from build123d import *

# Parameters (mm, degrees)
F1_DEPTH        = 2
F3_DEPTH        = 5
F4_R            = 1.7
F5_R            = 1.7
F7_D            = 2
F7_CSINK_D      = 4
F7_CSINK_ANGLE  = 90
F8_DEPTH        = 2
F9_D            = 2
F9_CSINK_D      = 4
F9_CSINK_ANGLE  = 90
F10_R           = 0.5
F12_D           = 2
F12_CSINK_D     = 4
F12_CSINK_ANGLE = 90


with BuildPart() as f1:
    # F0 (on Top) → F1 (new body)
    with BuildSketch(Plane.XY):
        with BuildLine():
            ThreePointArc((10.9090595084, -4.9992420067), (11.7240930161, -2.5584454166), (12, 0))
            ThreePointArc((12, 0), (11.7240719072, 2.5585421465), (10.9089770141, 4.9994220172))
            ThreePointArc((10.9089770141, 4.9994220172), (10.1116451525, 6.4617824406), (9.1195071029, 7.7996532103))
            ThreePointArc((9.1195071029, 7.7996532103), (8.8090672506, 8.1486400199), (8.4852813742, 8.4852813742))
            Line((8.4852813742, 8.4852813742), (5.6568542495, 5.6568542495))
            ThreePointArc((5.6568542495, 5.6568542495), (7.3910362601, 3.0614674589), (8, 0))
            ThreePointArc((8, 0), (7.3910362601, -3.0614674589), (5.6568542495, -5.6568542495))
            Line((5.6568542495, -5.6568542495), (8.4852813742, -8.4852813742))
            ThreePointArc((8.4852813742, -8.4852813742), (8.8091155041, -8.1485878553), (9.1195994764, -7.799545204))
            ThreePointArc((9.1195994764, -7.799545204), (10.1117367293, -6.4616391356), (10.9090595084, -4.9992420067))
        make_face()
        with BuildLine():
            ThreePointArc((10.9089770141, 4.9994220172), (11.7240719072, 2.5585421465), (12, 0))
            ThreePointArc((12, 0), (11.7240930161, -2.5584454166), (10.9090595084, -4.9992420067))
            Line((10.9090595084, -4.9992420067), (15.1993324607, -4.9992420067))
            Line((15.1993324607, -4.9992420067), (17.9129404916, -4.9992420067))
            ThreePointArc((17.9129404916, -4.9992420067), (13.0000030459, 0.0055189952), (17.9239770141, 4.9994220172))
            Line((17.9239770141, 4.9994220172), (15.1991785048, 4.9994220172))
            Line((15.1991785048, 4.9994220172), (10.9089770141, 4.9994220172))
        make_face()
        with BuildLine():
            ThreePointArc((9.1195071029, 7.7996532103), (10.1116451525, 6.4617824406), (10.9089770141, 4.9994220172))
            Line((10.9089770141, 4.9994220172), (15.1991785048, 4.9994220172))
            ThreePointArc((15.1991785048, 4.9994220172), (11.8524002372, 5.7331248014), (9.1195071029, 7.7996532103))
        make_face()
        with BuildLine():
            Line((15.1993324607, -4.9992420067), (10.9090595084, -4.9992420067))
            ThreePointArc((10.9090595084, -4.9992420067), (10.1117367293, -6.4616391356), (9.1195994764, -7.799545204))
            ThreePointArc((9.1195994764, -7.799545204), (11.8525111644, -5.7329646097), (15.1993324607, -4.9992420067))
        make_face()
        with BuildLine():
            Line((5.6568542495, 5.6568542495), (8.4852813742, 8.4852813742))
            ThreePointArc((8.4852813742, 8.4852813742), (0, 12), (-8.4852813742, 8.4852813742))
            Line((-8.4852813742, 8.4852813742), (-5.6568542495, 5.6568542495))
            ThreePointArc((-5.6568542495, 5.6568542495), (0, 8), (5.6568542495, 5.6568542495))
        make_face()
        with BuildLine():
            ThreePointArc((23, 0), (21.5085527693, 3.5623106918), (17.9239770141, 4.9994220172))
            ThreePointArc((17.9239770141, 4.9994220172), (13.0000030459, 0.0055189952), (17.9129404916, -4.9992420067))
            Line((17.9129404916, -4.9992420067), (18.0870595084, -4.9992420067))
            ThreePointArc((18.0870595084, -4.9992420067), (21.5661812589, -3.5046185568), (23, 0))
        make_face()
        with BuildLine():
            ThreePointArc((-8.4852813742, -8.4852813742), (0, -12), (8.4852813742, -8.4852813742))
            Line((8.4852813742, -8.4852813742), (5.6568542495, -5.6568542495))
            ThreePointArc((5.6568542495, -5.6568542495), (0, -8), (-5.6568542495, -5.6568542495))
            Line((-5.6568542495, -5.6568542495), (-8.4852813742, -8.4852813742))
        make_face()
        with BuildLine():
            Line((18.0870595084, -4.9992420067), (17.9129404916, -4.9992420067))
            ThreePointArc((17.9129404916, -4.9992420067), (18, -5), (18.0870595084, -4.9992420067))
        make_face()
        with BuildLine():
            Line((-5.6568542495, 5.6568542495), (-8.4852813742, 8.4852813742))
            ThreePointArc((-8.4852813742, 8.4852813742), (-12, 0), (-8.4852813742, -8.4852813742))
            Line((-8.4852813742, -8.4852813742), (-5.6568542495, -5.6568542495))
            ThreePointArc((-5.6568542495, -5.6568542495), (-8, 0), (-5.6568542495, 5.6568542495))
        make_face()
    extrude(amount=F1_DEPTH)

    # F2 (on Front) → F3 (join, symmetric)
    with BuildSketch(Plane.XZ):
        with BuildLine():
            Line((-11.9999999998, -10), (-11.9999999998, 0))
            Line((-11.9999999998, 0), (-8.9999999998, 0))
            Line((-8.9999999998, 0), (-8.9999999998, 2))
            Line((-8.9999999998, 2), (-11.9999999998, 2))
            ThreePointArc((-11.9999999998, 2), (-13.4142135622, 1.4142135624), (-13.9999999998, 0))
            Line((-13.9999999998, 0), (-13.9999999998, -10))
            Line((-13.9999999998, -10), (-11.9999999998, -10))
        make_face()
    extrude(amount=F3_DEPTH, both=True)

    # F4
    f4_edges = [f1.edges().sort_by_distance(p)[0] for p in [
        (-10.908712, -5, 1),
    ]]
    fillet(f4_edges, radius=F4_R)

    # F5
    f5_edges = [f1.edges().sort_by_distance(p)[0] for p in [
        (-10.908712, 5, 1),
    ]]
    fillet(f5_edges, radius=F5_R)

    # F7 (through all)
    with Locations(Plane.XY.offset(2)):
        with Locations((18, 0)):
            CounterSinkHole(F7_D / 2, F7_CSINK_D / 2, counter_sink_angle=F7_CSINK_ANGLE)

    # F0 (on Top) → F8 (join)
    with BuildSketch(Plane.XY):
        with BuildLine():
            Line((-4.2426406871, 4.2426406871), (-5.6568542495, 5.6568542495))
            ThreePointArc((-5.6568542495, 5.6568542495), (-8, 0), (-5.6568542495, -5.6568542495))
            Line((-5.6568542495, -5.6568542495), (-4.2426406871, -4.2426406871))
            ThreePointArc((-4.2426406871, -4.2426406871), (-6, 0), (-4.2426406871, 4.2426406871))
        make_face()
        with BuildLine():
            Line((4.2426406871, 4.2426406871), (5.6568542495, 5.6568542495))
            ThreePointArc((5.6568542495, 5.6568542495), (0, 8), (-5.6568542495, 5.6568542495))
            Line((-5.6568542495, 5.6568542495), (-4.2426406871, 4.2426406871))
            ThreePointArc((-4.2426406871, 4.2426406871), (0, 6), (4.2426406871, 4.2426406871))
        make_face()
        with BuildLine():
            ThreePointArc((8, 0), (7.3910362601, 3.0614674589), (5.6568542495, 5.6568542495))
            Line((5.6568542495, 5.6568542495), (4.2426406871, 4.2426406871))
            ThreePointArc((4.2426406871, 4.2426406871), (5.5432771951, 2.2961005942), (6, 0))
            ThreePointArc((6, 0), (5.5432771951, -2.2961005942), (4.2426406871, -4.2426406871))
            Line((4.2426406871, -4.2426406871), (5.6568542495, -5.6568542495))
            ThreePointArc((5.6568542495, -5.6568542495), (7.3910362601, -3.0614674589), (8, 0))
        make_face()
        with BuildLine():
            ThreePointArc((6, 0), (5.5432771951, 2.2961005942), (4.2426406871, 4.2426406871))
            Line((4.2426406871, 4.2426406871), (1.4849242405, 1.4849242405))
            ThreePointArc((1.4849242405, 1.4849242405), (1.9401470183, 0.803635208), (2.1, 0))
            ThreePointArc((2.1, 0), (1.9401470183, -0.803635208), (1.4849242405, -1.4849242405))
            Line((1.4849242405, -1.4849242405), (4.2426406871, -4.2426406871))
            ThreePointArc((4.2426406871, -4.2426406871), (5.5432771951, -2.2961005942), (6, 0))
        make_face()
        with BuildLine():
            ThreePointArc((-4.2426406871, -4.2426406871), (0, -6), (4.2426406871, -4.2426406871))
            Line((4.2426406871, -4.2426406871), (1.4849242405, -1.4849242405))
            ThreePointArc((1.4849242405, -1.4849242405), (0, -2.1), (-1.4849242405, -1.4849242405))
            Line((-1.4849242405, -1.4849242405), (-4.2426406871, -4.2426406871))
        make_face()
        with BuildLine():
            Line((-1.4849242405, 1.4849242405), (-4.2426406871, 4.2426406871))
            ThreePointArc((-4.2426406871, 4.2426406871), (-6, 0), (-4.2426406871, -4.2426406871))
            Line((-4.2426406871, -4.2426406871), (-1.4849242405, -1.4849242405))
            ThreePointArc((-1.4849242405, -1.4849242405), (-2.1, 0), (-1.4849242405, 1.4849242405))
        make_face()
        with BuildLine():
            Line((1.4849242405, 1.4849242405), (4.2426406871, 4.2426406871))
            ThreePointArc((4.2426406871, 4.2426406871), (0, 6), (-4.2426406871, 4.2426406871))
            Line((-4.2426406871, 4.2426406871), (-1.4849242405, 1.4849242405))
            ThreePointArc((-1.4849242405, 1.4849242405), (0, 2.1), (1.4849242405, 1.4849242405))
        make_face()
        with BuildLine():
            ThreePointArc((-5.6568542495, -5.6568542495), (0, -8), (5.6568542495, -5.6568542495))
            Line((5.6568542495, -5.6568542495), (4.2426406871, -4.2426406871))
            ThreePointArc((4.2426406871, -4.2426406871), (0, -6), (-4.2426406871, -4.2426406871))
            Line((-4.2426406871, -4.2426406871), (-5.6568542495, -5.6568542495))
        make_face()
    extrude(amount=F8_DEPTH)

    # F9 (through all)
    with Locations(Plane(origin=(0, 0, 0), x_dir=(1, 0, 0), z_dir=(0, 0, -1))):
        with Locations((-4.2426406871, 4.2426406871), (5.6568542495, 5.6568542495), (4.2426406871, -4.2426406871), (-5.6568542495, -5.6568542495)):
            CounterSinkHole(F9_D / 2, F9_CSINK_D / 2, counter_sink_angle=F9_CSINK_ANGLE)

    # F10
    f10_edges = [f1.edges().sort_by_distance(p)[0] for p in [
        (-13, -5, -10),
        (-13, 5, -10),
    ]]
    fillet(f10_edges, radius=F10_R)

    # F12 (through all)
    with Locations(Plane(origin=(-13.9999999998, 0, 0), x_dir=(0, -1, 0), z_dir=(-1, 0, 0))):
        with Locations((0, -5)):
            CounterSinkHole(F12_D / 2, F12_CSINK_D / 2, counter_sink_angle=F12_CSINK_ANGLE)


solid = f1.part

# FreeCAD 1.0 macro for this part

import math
import FreeCAD as App
import Part
import Sketcher
from FreeCAD import Vector
Q = App.Units.Quantity


def edges_at(feature, points):
    """Names of the edges that pass closest to the given points."""
    edges = feature.Shape.Edges
    near = lambda p: min(range(len(edges)), key=lambda i: edges[i].distToShape(Part.Vertex(*p))[0])
    return sorted({f"Edge{near(p) + 1}" for p in points})

doc = App.newDocument("Part")
params = doc.addObject("Spreadsheet::Sheet", "Params")
for row, (alias, value) in enumerate([
    ("sketch1_radius", "12 mm"),
    ("sketch1_radius2", "8 mm"),
    ("sketch1_radius3", "5 mm"),
    ("pad1_length", "2 mm"),
    ("sketch2_radius", "2 mm"),
    ("sketch2_width", "3 mm"),
    ("sketch2_height", "10 mm"),
    ("pad2_length", "10 mm"),
    ("fillet_radius", "1.7 mm"),
    ("fillet2_radius", "1.7 mm"),
    ("sketch3_diameter", "2 mm"),
    ("hole_diameter", "2 mm"),
    ("hole_csink_diameter", "4 mm"),
    ("sketch4_radius", "8 mm"),
    ("sketch4_radius2", "2.1 mm"),
    ("pad3_length", "2 mm"),
    ("sketch5_diameter", "2 mm"),
    ("hole2_diameter", "2 mm"),
    ("hole2_csink_diameter", "4 mm"),
    ("fillet3_radius", "0.5 mm"),
    ("sketch6_diameter", "2 mm"),
    ("hole3_diameter", "2 mm"),
    ("hole3_csink_diameter", "4 mm"),
], start=1):
    params.set(f"A{row}", alias)
    params.set(f"B{row}", "=" + value)
    params.setAlias(f"B{row}", alias)

body = doc.addObject("PartDesign::Body", "Body")

sketch1 = doc.addObject("Sketcher::SketchObject", "Sketch")
body.addObject(sketch1)
sketch1.AttachmentSupport = (doc.XY_Plane, [""])
sketch1.MapMode = "FlatFace"
sketch1.addGeometry(Part.ArcOfCircle(Part.Circle(Vector(0, 0, 0), Vector(0, 0, 1), 12), math.radians(40.539423), math.radians(45)), False)
sketch1.addGeometry(Part.ArcOfCircle(Part.Circle(Vector(0, 0, 0), Vector(0, 0, 1), 12), math.radians(45), math.radians(135)), False)
sketch1.addGeometry(Part.ArcOfCircle(Part.Circle(Vector(0, 0, 0), Vector(0, 0, 1), 12), math.radians(135), math.radians(225)), False)
sketch1.addGeometry(Part.ArcOfCircle(Part.Circle(Vector(0, 0, 0), Vector(0, 0, 1), 12), math.radians(-135), math.radians(-45)), False)
sketch1.addGeometry(Part.ArcOfCircle(Part.Circle(Vector(0, 0, 0), Vector(0, 0, 1), 12), math.radians(-45), math.radians(-40.538744)), False)
sketch1.addGeometry(Part.ArcOfCircle(Part.Circle(Vector(15.199332, -12.999242, 0), Vector(0, 0, 1), 8), math.radians(90), math.radians(139.461256)), False)
sketch1.addGeometry(Part.LineSegment(Vector(15.199332, -4.999242, 0), Vector(17.91294, -4.999242, 0)), False)
sketch1.addGeometry(Part.ArcOfCircle(Part.Circle(Vector(18, 0, 0), Vector(0, 0, 1), 5), math.radians(-90.997679), math.radians(-89.002321)), False)
sketch1.addGeometry(Part.ArcOfCircle(Part.Circle(Vector(18, 0, 0), Vector(0, 0, 1), 5), math.radians(-89.002321), math.radians(0)), False)
sketch1.addGeometry(Part.ArcOfCircle(Part.Circle(Vector(18, 0, 0), Vector(0, 0, 1), 5), math.radians(0), math.radians(90.871193)), False)
sketch1.addGeometry(Part.LineSegment(Vector(17.923977, 4.999422, 0), Vector(15.199179, 4.999422, 0)), False)
sketch1.addGeometry(Part.ArcOfCircle(Part.Circle(Vector(15.199179, 12.999422, 0), Vector(0, 0, 1), 8), math.radians(-139.460577), math.radians(-90)), False)
sketch1.addGeometry(Part.ArcOfCircle(Part.Circle(Vector(0, 0, 0), Vector(0, 0, 1), 8), math.radians(45), math.radians(135)), False)
sketch1.addGeometry(Part.ArcOfCircle(Part.Circle(Vector(0, 0, 0), Vector(0, 0, 1), 8), math.radians(0), math.radians(45)), False)
sketch1.addGeometry(Part.ArcOfCircle(Part.Circle(Vector(0, 0, 0), Vector(0, 0, 1), 8), math.radians(-45), math.radians(0)), False)
sketch1.addGeometry(Part.ArcOfCircle(Part.Circle(Vector(0, 0, 0), Vector(0, 0, 1), 8), math.radians(-135), math.radians(-45)), False)
sketch1.addGeometry(Part.ArcOfCircle(Part.Circle(Vector(0, 0, 0), Vector(0, 0, 1), 8), math.radians(135), math.radians(225)), False)
sketch1.addConstraint(Sketcher.Constraint("Tangent", 0, 2, 1, 1))
sketch1.addConstraint(Sketcher.Constraint("Tangent", 1, 2, 2, 1))
sketch1.addConstraint(Sketcher.Constraint("Tangent", 2, 2, 3, 1))
sketch1.addConstraint(Sketcher.Constraint("Tangent", 3, 2, 4, 1))
sketch1.addConstraint(Sketcher.Constraint("Tangent", 4, 2, 5, 2))
sketch1.addConstraint(Sketcher.Constraint("Tangent", 5, 1, 6, 1))
sketch1.addConstraint(Sketcher.Constraint("Coincident", 6, 2, 7, 1))
sketch1.addConstraint(Sketcher.Constraint("Tangent", 7, 2, 8, 1))
sketch1.addConstraint(Sketcher.Constraint("Tangent", 8, 2, 9, 1))
sketch1.addConstraint(Sketcher.Constraint("Coincident", 9, 2, 10, 1))
sketch1.addConstraint(Sketcher.Constraint("Tangent", 10, 2, 11, 2))
sketch1.addConstraint(Sketcher.Constraint("Tangent", 11, 1, 0, 1))
sketch1.addConstraint(Sketcher.Constraint("Tangent", 12, 1, 13, 2))
sketch1.addConstraint(Sketcher.Constraint("Tangent", 13, 1, 14, 2))
sketch1.addConstraint(Sketcher.Constraint("Tangent", 14, 1, 15, 2))
sketch1.addConstraint(Sketcher.Constraint("Tangent", 15, 1, 16, 2))
sketch1.addConstraint(Sketcher.Constraint("Tangent", 16, 1, 12, 2))
sketch1.addConstraint(Sketcher.Constraint("Horizontal", 6))
sketch1.addConstraint(Sketcher.Constraint("Horizontal", 10))
sketch1.addConstraint(Sketcher.Constraint("Coincident", 0, 3, -1, 1))
sketch1.addConstraint(Sketcher.Constraint("Coincident", 2, 3, -1, 1))
sketch1.addConstraint(Sketcher.Constraint("Coincident", 4, 3, -1, 1))
sketch1.addConstraint(Sketcher.Constraint("Coincident", 12, 3, -1, 1))
sketch1.addConstraint(Sketcher.Constraint("Coincident", 14, 3, -1, 1))
sketch1.addConstraint(Sketcher.Constraint("Coincident", 9, 3, 7, 3))
sketch1.addConstraint(Sketcher.Constraint("Equal", 5, 11))
sketch1.addConstraint(Sketcher.Constraint("Equal", 11, 12))
sketch1.addConstraint(Sketcher.Constraint("PointOnObject", 7, 3, -1))
sketch1.addConstraint(Sketcher.Constraint("PointOnObject", 8, 2, -1))
sketch1.addConstraint(Sketcher.Constraint("PointOnObject", 13, 1, -1))
sketch1.addConstraint(Sketcher.Constraint("Horizontal", 0, 2, 1, 2))
sketch1.addConstraint(Sketcher.Constraint("Horizontal", 2, 2, 3, 2))
sketch1.addConstraint(Sketcher.Constraint("Horizontal", 6, 2, 7, 2))
sketch1.addConstraint(Sketcher.Constraint("Horizontal", 14, 1, 15, 1))
sketch1.addConstraint(Sketcher.Constraint("Horizontal", 12, 1, 16, 1))
sketch1.addConstraint(Sketcher.Constraint("Vertical", 1, 2, 2, 2))
sketch1.addConstraint(Sketcher.Constraint("Vertical", 12, 1, 14, 1))
sketch1.addConstraint(Sketcher.Constraint("Radius", 0, Q("12 mm")))
sketch1.addConstraint(Sketcher.Constraint("Radius", 5, Q("8 mm")))
sketch1.addConstraint(Sketcher.Constraint("Radius", 7, Q("5 mm")))
sketch1.addConstraint(Sketcher.Constraint("DistanceX", -1, 1, 7, 3, Q("18 mm")))
sketch1.addConstraint(Sketcher.Constraint("DistanceX", 10, 2, 10, 1, Q("2.724799 mm")))
sketch1.addConstraint(Sketcher.Constraint("DistanceX", 6, 1, 6, 2, Q("2.713608 mm")))
sketch1.addConstraint(Sketcher.Constraint("DistanceY", 12, 1, 11, 1, Q("2.142799 mm")))
sketch1.addConstraint(Sketcher.Constraint("DistanceX", -1, 1, 0, 2, Q("8.485281 mm")))
sketch1.setExpression("Constraints[37]", "Params.sketch1_radius")
sketch1.setExpression("Constraints[38]", "Params.sketch1_radius2")
sketch1.setExpression("Constraints[39]", "Params.sketch1_radius3")
pad1 = doc.addObject("PartDesign::Pad", "Pad")
body.addObject(pad1)
pad1.Profile = sketch1
pad1.setExpression("Length", "Params.pad1_length")

sketch2 = doc.addObject("Sketcher::SketchObject", "Sketch001")
body.addObject(sketch2)
sketch2.AttachmentSupport = (doc.XZ_Plane, [""])
sketch2.MapMode = "FlatFace"
sketch2.addGeometry(Part.LineSegment(Vector(-12, -10, 0), Vector(-12, 0, 0)), False)
sketch2.addGeometry(Part.LineSegment(Vector(-12, 0, 0), Vector(-9, 0, 0)), False)
sketch2.addGeometry(Part.LineSegment(Vector(-9, 0, 0), Vector(-9, 2, 0)), False)
sketch2.addGeometry(Part.LineSegment(Vector(-9, 2, 0), Vector(-12, 2, 0)), False)
sketch2.addGeometry(Part.ArcOfCircle(Part.Circle(Vector(-12, 0, 0), Vector(0, 0, 1), 2), math.radians(90), math.radians(180)), False)
sketch2.addGeometry(Part.LineSegment(Vector(-14, 0, 0), Vector(-14, -10, 0)), False)
sketch2.addGeometry(Part.LineSegment(Vector(-14, -10, 0), Vector(-12, -10, 0)), False)
sketch2.addConstraint(Sketcher.Constraint("Coincident", 0, 2, 1, 1))
sketch2.addConstraint(Sketcher.Constraint("Coincident", 1, 2, 2, 1))
sketch2.addConstraint(Sketcher.Constraint("Coincident", 2, 2, 3, 1))
sketch2.addConstraint(Sketcher.Constraint("Tangent", 3, 2, 4, 1))
sketch2.addConstraint(Sketcher.Constraint("Tangent", 4, 2, 5, 1))
sketch2.addConstraint(Sketcher.Constraint("Coincident", 5, 2, 6, 1))
sketch2.addConstraint(Sketcher.Constraint("Coincident", 6, 2, 0, 1))
sketch2.addConstraint(Sketcher.Constraint("Vertical", 0))
sketch2.addConstraint(Sketcher.Constraint("Horizontal", 1))
sketch2.addConstraint(Sketcher.Constraint("Vertical", 2))
sketch2.addConstraint(Sketcher.Constraint("Horizontal", 3))
sketch2.addConstraint(Sketcher.Constraint("Vertical", 5))
sketch2.addConstraint(Sketcher.Constraint("Horizontal", 6))
sketch2.addConstraint(Sketcher.Constraint("Coincident", 0, 2, 4, 3))
sketch2.addConstraint(Sketcher.Constraint("PointOnObject", 4, 3, -1))
sketch2.addConstraint(Sketcher.Constraint("Radius", 4, Q("2 mm")))
sketch2.addConstraint(Sketcher.Constraint("DistanceX", 1, 1, 1, 2, Q("3 mm")))
sketch2.addConstraint(Sketcher.Constraint("DistanceY", 0, 1, 0, 2, Q("10 mm")))
sketch2.addConstraint(Sketcher.Constraint("DistanceX", 4, 3, -1, 1, Q("12 mm")))
sketch2.setExpression("Constraints[15]", "Params.sketch2_radius")
sketch2.setExpression("Constraints[16]", "Params.sketch2_width")
sketch2.setExpression("Constraints[17]", "Params.sketch2_height")
pad2 = doc.addObject("PartDesign::Pad", "Pad001")
body.addObject(pad2)
pad2.Profile = sketch2
pad2.setExpression("Length", "Params.pad2_length")
pad2.Midplane = True
doc.recompute()

fillet = doc.addObject("PartDesign::Fillet", "Fillet")
body.addObject(fillet)
fillet.Base = (pad2, edges_at(pad2, [(-10.909, -5, 1)]))
fillet.setExpression("Radius", "Params.fillet_radius")
doc.recompute()

fillet2 = doc.addObject("PartDesign::Fillet", "Fillet001")
body.addObject(fillet2)
fillet2.Base = (fillet, edges_at(fillet, [(-10.909, 5, 1)]))
fillet2.setExpression("Radius", "Params.fillet2_radius")

sketch3 = doc.addObject("Sketcher::SketchObject", "Sketch002")
body.addObject(sketch3)
sketch3.AttachmentSupport = (doc.XY_Plane, [""])
sketch3.MapMode = "FlatFace"
sketch3.AttachmentOffset = App.Placement(Vector(0, 0, 2), App.Rotation())
sketch3.addGeometry(Part.Circle(Vector(18, 0, 0), Vector(0, 0, 1), 1), False)
sketch3.addConstraint(Sketcher.Constraint("PointOnObject", 0, 3, -1))
sketch3.addConstraint(Sketcher.Constraint("Diameter", 0, Q("2 mm")))
sketch3.addConstraint(Sketcher.Constraint("DistanceX", -1, 1, 0, 3, Q("18 mm")))
sketch3.setExpression("Constraints[1]", "Params.sketch3_diameter")
doc.recompute()
hole = doc.addObject("PartDesign::Hole", "Hole")
body.addObject(hole)
hole.Profile = sketch3
hole.ThreadType = "None"
hole.setExpression("Diameter", "Params.hole_diameter")
hole.DepthType = "ThroughAll"
hole.HoleCutType = "Countersink"
hole.setExpression("HoleCutDiameter", "Params.hole_csink_diameter")
hole.HoleCutCountersinkAngle = 90

sketch4 = doc.addObject("Sketcher::SketchObject", "Sketch003")
body.addObject(sketch4)
sketch4.AttachmentSupport = (doc.XY_Plane, [""])
sketch4.MapMode = "FlatFace"
sketch4.addGeometry(Part.ArcOfCircle(Part.Circle(Vector(0, 0, 0), Vector(0, 0, 1), 8), math.radians(-45), math.radians(0)), False)
sketch4.addGeometry(Part.ArcOfCircle(Part.Circle(Vector(0, 0, 0), Vector(0, 0, 1), 8), math.radians(0), math.radians(45)), False)
sketch4.addGeometry(Part.ArcOfCircle(Part.Circle(Vector(0, 0, 0), Vector(0, 0, 1), 8), math.radians(45), math.radians(135)), False)
sketch4.addGeometry(Part.ArcOfCircle(Part.Circle(Vector(0, 0, 0), Vector(0, 0, 1), 8), math.radians(135), math.radians(225)), False)
sketch4.addGeometry(Part.ArcOfCircle(Part.Circle(Vector(0, 0, 0), Vector(0, 0, 1), 8), math.radians(-135), math.radians(-45)), False)
sketch4.addGeometry(Part.ArcOfCircle(Part.Circle(Vector(0, 0, 0), Vector(0, 0, 1), 2.1), math.radians(-135), math.radians(-45)), False)
sketch4.addGeometry(Part.ArcOfCircle(Part.Circle(Vector(0, 0, 0), Vector(0, 0, 1), 2.1), math.radians(135), math.radians(225)), False)
sketch4.addGeometry(Part.ArcOfCircle(Part.Circle(Vector(0, 0, 0), Vector(0, 0, 1), 2.1), math.radians(45), math.radians(135)), False)
sketch4.addGeometry(Part.ArcOfCircle(Part.Circle(Vector(0, 0, 0), Vector(0, 0, 1), 2.1), math.radians(0), math.radians(45)), False)
sketch4.addGeometry(Part.ArcOfCircle(Part.Circle(Vector(0, 0, 0), Vector(0, 0, 1), 2.1), math.radians(-45), math.radians(0)), False)
sketch4.addConstraint(Sketcher.Constraint("Tangent", 0, 2, 1, 1))
sketch4.addConstraint(Sketcher.Constraint("Tangent", 1, 2, 2, 1))
sketch4.addConstraint(Sketcher.Constraint("Tangent", 2, 2, 3, 1))
sketch4.addConstraint(Sketcher.Constraint("Tangent", 3, 2, 4, 1))
sketch4.addConstraint(Sketcher.Constraint("Tangent", 4, 2, 0, 1))
sketch4.addConstraint(Sketcher.Constraint("Tangent", 5, 1, 6, 2))
sketch4.addConstraint(Sketcher.Constraint("Tangent", 6, 1, 7, 2))
sketch4.addConstraint(Sketcher.Constraint("Tangent", 7, 1, 8, 2))
sketch4.addConstraint(Sketcher.Constraint("Tangent", 8, 1, 9, 2))
sketch4.addConstraint(Sketcher.Constraint("Tangent", 9, 1, 5, 2))
sketch4.addConstraint(Sketcher.Constraint("Coincident", 0, 3, -1, 1))
sketch4.addConstraint(Sketcher.Constraint("Coincident", 2, 3, -1, 1))
sketch4.addConstraint(Sketcher.Constraint("Coincident", 5, 3, -1, 1))
sketch4.addConstraint(Sketcher.Constraint("Coincident", 7, 3, -1, 1))
sketch4.addConstraint(Sketcher.Constraint("PointOnObject", 0, 2, -1))
sketch4.addConstraint(Sketcher.Constraint("PointOnObject", 8, 1, -1))
sketch4.addConstraint(Sketcher.Constraint("Horizontal", 1, 2, 2, 2))
sketch4.addConstraint(Sketcher.Constraint("Horizontal", 3, 2, 4, 2))
sketch4.addConstraint(Sketcher.Constraint("Horizontal", 6, 1, 7, 1))
sketch4.addConstraint(Sketcher.Constraint("Horizontal", 5, 1, 9, 1))
sketch4.addConstraint(Sketcher.Constraint("Vertical", 2, 2, 3, 2))
sketch4.addConstraint(Sketcher.Constraint("Vertical", 5, 1, 6, 1))
sketch4.addConstraint(Sketcher.Constraint("Radius", 0, Q("8 mm")))
sketch4.addConstraint(Sketcher.Constraint("Radius", 5, Q("2.1 mm")))
sketch4.addConstraint(Sketcher.Constraint("DistanceX", -1, 1, 1, 2, Q("5.656854 mm")))
sketch4.addConstraint(Sketcher.Constraint("DistanceX", 5, 1, -1, 1, Q("1.484924 mm")))
sketch4.setExpression("Constraints[22]", "Params.sketch4_radius")
sketch4.setExpression("Constraints[23]", "Params.sketch4_radius2")
pad3 = doc.addObject("PartDesign::Pad", "Pad002")
body.addObject(pad3)
pad3.Profile = sketch4
pad3.setExpression("Length", "Params.pad3_length")

sketch5 = doc.addObject("Sketcher::SketchObject", "Sketch004")
body.addObject(sketch5)
sketch5.AttachmentSupport = (doc.XY_Plane, [""])
sketch5.MapMode = "FlatFace"
sketch5.addGeometry(Part.Circle(Vector(-4.242641, -4.242641, 0), Vector(0, 0, 1), 1), False)
sketch5.addGeometry(Part.Circle(Vector(5.656854, -5.656854, 0), Vector(0, 0, 1), 1), False)
sketch5.addGeometry(Part.Circle(Vector(4.242641, 4.242641, 0), Vector(0, 0, 1), 1), False)
sketch5.addGeometry(Part.Circle(Vector(-5.656854, 5.656854, 0), Vector(0, 0, 1), 1), False)
sketch5.addConstraint(Sketcher.Constraint("Equal", 0, 1))
sketch5.addConstraint(Sketcher.Constraint("Equal", 1, 2))
sketch5.addConstraint(Sketcher.Constraint("Equal", 2, 3))
sketch5.addConstraint(Sketcher.Constraint("Symmetric", 0, 3, 2, 3, -1, 1))
sketch5.addConstraint(Sketcher.Constraint("Symmetric", 1, 3, 3, 3, -1, 1))
sketch5.addConstraint(Sketcher.Constraint("Diameter", 0, Q("2 mm")))
sketch5.addConstraint(Sketcher.Constraint("DistanceX", 0, 3, -1, 1, Q("4.242641 mm")))
sketch5.addConstraint(Sketcher.Constraint("DistanceY", 0, 3, -1, 1, Q("4.242641 mm")))
sketch5.addConstraint(Sketcher.Constraint("DistanceX", 3, 3, 1, 3, Q("11.313709 mm")))
sketch5.addConstraint(Sketcher.Constraint("DistanceY", 1, 3, 3, 3, Q("11.313709 mm")))
sketch5.setExpression("Constraints[5]", "Params.sketch5_diameter")
doc.recompute()
hole2 = doc.addObject("PartDesign::Hole", "Hole001")
body.addObject(hole2)
hole2.Profile = sketch5
hole2.ThreadType = "None"
hole2.setExpression("Diameter", "Params.hole2_diameter")
hole2.DepthType = "ThroughAll"
hole2.HoleCutType = "Countersink"
hole2.setExpression("HoleCutDiameter", "Params.hole2_csink_diameter")
hole2.HoleCutCountersinkAngle = 90
hole2.Reversed = True
doc.recompute()

fillet3 = doc.addObject("PartDesign::Fillet", "Fillet002")
body.addObject(fillet3)
fillet3.Base = (hole2, edges_at(hole2, [(-13, -5, -10), (-13, 5, -10)]))
fillet3.setExpression("Radius", "Params.fillet3_radius")

sketch6 = doc.addObject("Sketcher::SketchObject", "Sketch005")
body.addObject(sketch6)
sketch6.AttachmentSupport = (doc.YZ_Plane, [""])
sketch6.MapMode = "FlatFace"
sketch6.AttachmentOffset = App.Placement(Vector(0, 0, -14), App.Rotation())
sketch6.addGeometry(Part.Circle(Vector(0, -5, 0), Vector(0, 0, 1), 1), False)
sketch6.addConstraint(Sketcher.Constraint("PointOnObject", 0, 3, -2))
sketch6.addConstraint(Sketcher.Constraint("Diameter", 0, Q("2 mm")))
sketch6.addConstraint(Sketcher.Constraint("DistanceY", 0, 3, -1, 1, Q("5 mm")))
sketch6.setExpression("Constraints[1]", "Params.sketch6_diameter")
doc.recompute()
hole3 = doc.addObject("PartDesign::Hole", "Hole002")
body.addObject(hole3)
hole3.Profile = sketch6
hole3.ThreadType = "None"
hole3.setExpression("Diameter", "Params.hole3_diameter")
hole3.DepthType = "ThroughAll"
hole3.HoleCutType = "Countersink"
hole3.setExpression("HoleCutDiameter", "Params.hole3_csink_diameter")
hole3.HoleCutCountersinkAngle = 90
hole3.Reversed = True

doc.recompute()
